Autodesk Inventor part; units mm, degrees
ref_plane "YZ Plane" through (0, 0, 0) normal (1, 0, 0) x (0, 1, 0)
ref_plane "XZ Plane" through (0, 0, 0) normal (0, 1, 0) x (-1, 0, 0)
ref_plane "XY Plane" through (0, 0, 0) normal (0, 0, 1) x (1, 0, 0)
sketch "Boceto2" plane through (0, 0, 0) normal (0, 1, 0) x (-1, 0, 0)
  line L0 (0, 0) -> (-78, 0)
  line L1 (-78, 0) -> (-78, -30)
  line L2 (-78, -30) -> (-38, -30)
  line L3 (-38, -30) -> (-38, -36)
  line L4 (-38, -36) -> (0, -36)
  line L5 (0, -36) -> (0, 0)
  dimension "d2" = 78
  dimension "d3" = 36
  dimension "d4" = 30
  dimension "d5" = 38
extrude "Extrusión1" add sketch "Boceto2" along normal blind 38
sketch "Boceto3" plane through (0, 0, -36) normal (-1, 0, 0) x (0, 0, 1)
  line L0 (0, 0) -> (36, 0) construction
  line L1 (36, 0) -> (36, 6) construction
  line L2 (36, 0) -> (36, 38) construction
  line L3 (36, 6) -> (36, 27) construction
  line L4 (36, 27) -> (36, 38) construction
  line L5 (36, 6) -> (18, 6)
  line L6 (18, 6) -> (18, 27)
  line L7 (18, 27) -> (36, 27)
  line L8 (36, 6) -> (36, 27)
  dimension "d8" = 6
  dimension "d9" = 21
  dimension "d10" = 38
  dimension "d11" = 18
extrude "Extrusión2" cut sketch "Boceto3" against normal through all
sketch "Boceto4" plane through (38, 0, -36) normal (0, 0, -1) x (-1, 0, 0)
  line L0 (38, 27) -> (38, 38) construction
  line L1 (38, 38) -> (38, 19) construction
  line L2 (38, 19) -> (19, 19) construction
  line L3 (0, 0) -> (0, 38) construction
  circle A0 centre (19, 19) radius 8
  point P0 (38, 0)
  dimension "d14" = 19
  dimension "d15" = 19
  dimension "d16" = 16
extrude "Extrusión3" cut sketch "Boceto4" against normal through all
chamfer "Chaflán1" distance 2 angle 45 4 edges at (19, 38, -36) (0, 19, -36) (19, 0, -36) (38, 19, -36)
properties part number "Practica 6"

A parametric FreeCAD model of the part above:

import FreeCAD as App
import Part
import Sketcher

V = App.Vector


def edges_at(feature, points):
    """Names of the edges that pass closest to the given points."""
    edges = feature.Shape.Edges
    near = lambda p: min(range(len(edges)), key=lambda i: edges[i].distToShape(Part.Vertex(*p))[0])
    return sorted({f"Edge{near(p) + 1}" for p in points})

doc = App.newDocument("Part")
body = doc.addObject("PartDesign::Body", "Body")

# Sketch on XZ plane
sketch1 = body.newObject("Sketcher::SketchObject", "Sketch")
sketch1.AttachmentSupport = (doc.getObject("XZ_Plane"), [""])
sketch1.MapMode = "FlatFace"
sketch1.addGeometry([
    Part.LineSegment(V(0, -36, 0), V(0, 0, 0)),  # 0
    Part.LineSegment(V(0, 0, 0), V(78, 0, 0)),  # 1
    Part.LineSegment(V(78, 0, 0), V(78, -30, 0)),  # 2
    Part.LineSegment(V(78, -30, 0), V(38, -30, 0)),  # 3
    Part.LineSegment(V(38, -30, 0), V(38, -36, 0)),  # 4
    Part.LineSegment(V(38, -36, 0), V(0, -36, 0)),  # 5
], False)
sketch1.addConstraint([
    Sketcher.Constraint("Coincident", 0, 2, 1, 1),
    Sketcher.Constraint("Coincident", 1, 2, 2, 1),
    Sketcher.Constraint("Coincident", 2, 2, 3, 1),
    Sketcher.Constraint("Coincident", 3, 2, 4, 1),
    Sketcher.Constraint("Coincident", 4, 2, 5, 1),
    Sketcher.Constraint("Coincident", 5, 2, 0, 1),
    Sketcher.Constraint("Vertical", 0),
    Sketcher.Constraint("Horizontal", 1),
    Sketcher.Constraint("Vertical", 2),
    Sketcher.Constraint("Horizontal", 3),
    Sketcher.Constraint("Vertical", 4),
    Sketcher.Constraint("Horizontal", 5),
    Sketcher.Constraint("Coincident", 0, 2, -1, 1),
    Sketcher.Constraint("DistanceX", 1, 1, 1, 2, 78.0),
    Sketcher.Constraint("DistanceX", 5, 2, 5, 1, 38.0),
    Sketcher.Constraint("DistanceY", 0, 1, 0, 2, 36.0),
    Sketcher.Constraint("DistanceY", 2, 2, 2, 1, 30.0),
])
pad1 = body.newObject("PartDesign::Pad", "Pad")
pad1.Profile = sketch1
pad1.Length = 38
pad1.Reversed = True

# Sketch on YZ plane
sketch2 = body.newObject("Sketcher::SketchObject", "Sketch001")
sketch2.AttachmentSupport = (doc.getObject("YZ_Plane"), [""])
sketch2.MapMode = "FlatFace"
sketch2.addGeometry([
    Part.LineSegment(V(6, -18, 0), V(6, 0, 0)),
    Part.LineSegment(V(6, 0, 0), V(27, 0, 0)),
    Part.LineSegment(V(27, 0, 0), V(27, -18, 0)),
    Part.LineSegment(V(27, -18, 0), V(6, -18, 0)),
], False)
sketch2.addConstraint([
    Sketcher.Constraint("Coincident", 0, 2, 1, 1),
    Sketcher.Constraint("Coincident", 1, 2, 2, 1),
    Sketcher.Constraint("Coincident", 2, 2, 3, 1),
    Sketcher.Constraint("Coincident", 3, 2, 0, 1),
    Sketcher.Constraint("Vertical", 0),
    Sketcher.Constraint("Horizontal", 1),
    Sketcher.Constraint("Vertical", 2),
    Sketcher.Constraint("Horizontal", 3),
    Sketcher.Constraint("PointOnObject", 0, 2, -1),
    Sketcher.Constraint("DistanceX", 1, 1, 1, 2, 21.0),
    Sketcher.Constraint("DistanceY", 0, 1, 0, 2, 18.0),
    Sketcher.Constraint("DistanceX", -1, 1, 0, 2, 6.0),
])
pocket1 = body.newObject("PartDesign::Pocket", "Pocket")
pocket1.Profile = sketch2
pocket1.Type = "ThroughAll"
pocket1.Reversed = True

# Sketch on XY plane
sketch3 = body.newObject("Sketcher::SketchObject", "Sketch002")
sketch3.AttachmentSupport = (doc.getObject("XY_Plane"), [""])
sketch3.MapMode = "FlatFace"
sketch3.AttachmentOffset = App.Placement(V(0, 0, -36), App.Rotation())
sketch3.addGeometry(Part.Circle(V(19, 19, 0), V(0, 0, 1), 8), False)
sketch3.addConstraint([
    Sketcher.Constraint("Diameter", 0, 16.0),
    Sketcher.Constraint("DistanceX", -1, 1, 0, 3, 19.0),
    Sketcher.Constraint("DistanceY", -1, 1, 0, 3, 19.0),
])
pocket2 = body.newObject("PartDesign::Pocket", "Pocket001")
pocket2.Profile = sketch3
pocket2.Type = "ThroughAll"
pocket2.Reversed = True
doc.recompute()

chamfer = body.newObject("PartDesign::Chamfer", "Chamfer")
chamfer.Base = (pocket2, edges_at(pocket2, [
    (19, 38, -36),
    (0, 19, -36),
    (19, 0, -36),
    (38, 19, -36),
]))
chamfer.Size = 2

doc.recompute()
